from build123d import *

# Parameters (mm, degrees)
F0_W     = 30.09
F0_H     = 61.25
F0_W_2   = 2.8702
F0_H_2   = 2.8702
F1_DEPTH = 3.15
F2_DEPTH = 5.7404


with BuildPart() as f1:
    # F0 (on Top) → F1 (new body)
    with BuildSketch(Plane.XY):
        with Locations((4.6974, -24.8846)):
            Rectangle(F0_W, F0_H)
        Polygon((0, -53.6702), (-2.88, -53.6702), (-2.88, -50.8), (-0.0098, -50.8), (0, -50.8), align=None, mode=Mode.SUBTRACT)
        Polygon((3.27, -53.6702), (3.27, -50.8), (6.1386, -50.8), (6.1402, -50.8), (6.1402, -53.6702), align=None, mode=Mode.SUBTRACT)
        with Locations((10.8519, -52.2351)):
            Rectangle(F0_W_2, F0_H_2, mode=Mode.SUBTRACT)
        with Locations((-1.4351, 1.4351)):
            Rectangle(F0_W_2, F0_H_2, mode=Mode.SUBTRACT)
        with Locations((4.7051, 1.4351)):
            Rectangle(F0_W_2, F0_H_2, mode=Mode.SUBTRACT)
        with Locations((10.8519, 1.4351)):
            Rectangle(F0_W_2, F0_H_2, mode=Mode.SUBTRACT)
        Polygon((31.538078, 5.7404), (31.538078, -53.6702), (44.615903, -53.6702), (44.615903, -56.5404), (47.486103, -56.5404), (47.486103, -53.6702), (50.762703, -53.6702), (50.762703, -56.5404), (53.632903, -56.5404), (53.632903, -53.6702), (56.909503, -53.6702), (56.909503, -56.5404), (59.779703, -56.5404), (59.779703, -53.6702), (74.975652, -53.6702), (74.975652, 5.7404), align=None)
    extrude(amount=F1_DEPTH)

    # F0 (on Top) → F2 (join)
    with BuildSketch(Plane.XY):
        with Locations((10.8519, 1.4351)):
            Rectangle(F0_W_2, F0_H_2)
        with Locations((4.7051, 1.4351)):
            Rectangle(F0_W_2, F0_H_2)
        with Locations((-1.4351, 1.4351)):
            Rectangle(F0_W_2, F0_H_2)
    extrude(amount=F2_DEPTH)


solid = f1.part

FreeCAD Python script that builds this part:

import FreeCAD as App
import Part
import Sketcher
from FreeCAD import Vector
Q = App.Units.Quantity

doc = App.newDocument("Part")
body = doc.addObject("PartDesign::Body", "Body")
body.AllowCompound = True

sketch1 = body.newObject("Sketcher::SketchObject", "Sketch")
sketch1.AttachmentSupport = (doc.getObject("XY_Plane"), [""])
sketch1.MapMode = "FlatFace"
sketch1.addGeometry([
    Part.LineSegment(Vector(-10.3, 5.7, 0), Vector(-10.3, -55.5, 0)),
    Part.LineSegment(Vector(-10.3, -55.5, 0), Vector(19.7, -55.5, 0)),
    Part.LineSegment(Vector(19.7, -55.5, 0), Vector(19.7, 5.7, 0)),
    Part.LineSegment(Vector(19.7, 5.7, 0), Vector(-10.3, 5.7, 0)),
    Part.LineSegment(Vector(0, -50.8, 0), Vector(0, -53.7, 0)),
    Part.LineSegment(Vector(0, -53.7, 0), Vector(-2.9, -53.7, 0)),
    Part.LineSegment(Vector(-2.9, -53.7, 0), Vector(-2.9, -50.8, 0)),
    Part.LineSegment(Vector(-2.9, -50.8, 0), Vector(0, -50.8, 0)),
    Part.LineSegment(Vector(6.1, -53.7, 0), Vector(3.3, -53.7, 0)),
    Part.LineSegment(Vector(3.3, -53.7, 0), Vector(3.3, -50.8, 0)),
    Part.LineSegment(Vector(3.3, -50.8, 0), Vector(6.1, -50.8, 0)),
    Part.LineSegment(Vector(6.1, -50.8, 0), Vector(6.1, -53.7, 0)),
    Part.LineSegment(Vector(12.3, -53.7, 0), Vector(9.4, -53.7, 0)),
    Part.LineSegment(Vector(9.4, -53.7, 0), Vector(9.4, -50.8, 0)),
    Part.LineSegment(Vector(9.4, -50.8, 0), Vector(12.3, -50.8, 0)),
    Part.LineSegment(Vector(12.3, -50.8, 0), Vector(12.3, -53.7, 0)),
    Part.LineSegment(Vector(0, 0, 0), Vector(-2.9, 0, 0)),
    Part.LineSegment(Vector(-2.9, 0, 0), Vector(-2.9, 2.9, 0)),
    Part.LineSegment(Vector(-2.9, 2.9, 0), Vector(0, 2.9, 0)),
    Part.LineSegment(Vector(0, 2.9, 0), Vector(0, 0, 0)),
    Part.LineSegment(Vector(6.1, 0, 0), Vector(3.3, 0, 0)),
    Part.LineSegment(Vector(3.3, 0, 0), Vector(3.3, 2.9, 0)),
    Part.LineSegment(Vector(3.3, 2.9, 0), Vector(6.1, 2.9, 0)),
    Part.LineSegment(Vector(6.1, 2.9, 0), Vector(6.1, 0, 0)),
    Part.LineSegment(Vector(12.3, 0, 0), Vector(9.4, 0, 0)),
    Part.LineSegment(Vector(9.4, 0, 0), Vector(9.4, 2.9, 0)),
    Part.LineSegment(Vector(9.4, 2.9, 0), Vector(12.3, 2.9, 0)),
    Part.LineSegment(Vector(12.3, 2.9, 0), Vector(12.3, 0, 0)),
    Part.LineSegment(Vector(31.5, 5.7, 0), Vector(31.5, -53.7, 0)),
    Part.LineSegment(Vector(31.5, -53.7, 0), Vector(44.6, -53.7, 0)),
    Part.LineSegment(Vector(44.6, -53.7, 0), Vector(44.6, -56.5, 0)),
    Part.LineSegment(Vector(44.6, -56.5, 0), Vector(47.5, -56.5, 0)),
    Part.LineSegment(Vector(47.5, -56.5, 0), Vector(47.5, -53.7, 0)),
    Part.LineSegment(Vector(47.5, -53.7, 0), Vector(50.8, -53.7, 0)),
    Part.LineSegment(Vector(50.8, -53.7, 0), Vector(50.8, -56.5, 0)),
    Part.LineSegment(Vector(50.8, -56.5, 0), Vector(53.6, -56.5, 0)),
    Part.LineSegment(Vector(53.6, -56.5, 0), Vector(53.6, -53.7, 0)),
    Part.LineSegment(Vector(53.6, -53.7, 0), Vector(56.9, -53.7, 0)),
    Part.LineSegment(Vector(56.9, -53.7, 0), Vector(56.9, -56.5, 0)),
    Part.LineSegment(Vector(56.9, -56.5, 0), Vector(59.8, -56.5, 0)),
    Part.LineSegment(Vector(59.8, -56.5, 0), Vector(59.8, -53.7, 0)),
    Part.LineSegment(Vector(59.8, -53.7, 0), Vector(75, -53.7, 0)),
    Part.LineSegment(Vector(75, -53.7, 0), Vector(75, 5.7, 0)),
    Part.LineSegment(Vector(75, 5.7, 0), Vector(31.5, 5.7, 0)),
], False)
sketch1.addConstraint([
    Sketcher.Constraint("Coincident", 0, 2, 1, 1),
    Sketcher.Constraint("Coincident", 1, 2, 2, 1),
    Sketcher.Constraint("Coincident", 2, 2, 3, 1),
    Sketcher.Constraint("Coincident", 3, 2, 0, 1),
    Sketcher.Constraint("Coincident", 4, 2, 5, 1),
    Sketcher.Constraint("Coincident", 5, 2, 6, 1),
    Sketcher.Constraint("Coincident", 6, 2, 7, 1),
    Sketcher.Constraint("Coincident", 7, 2, 4, 1),
    Sketcher.Constraint("Coincident", 8, 2, 9, 1),
    Sketcher.Constraint("Coincident", 9, 2, 10, 1),
    Sketcher.Constraint("Coincident", 10, 2, 11, 1),
    Sketcher.Constraint("Coincident", 11, 2, 8, 1),
    Sketcher.Constraint("Coincident", 12, 2, 13, 1),
    Sketcher.Constraint("Coincident", 13, 2, 14, 1),
    Sketcher.Constraint("Coincident", 14, 2, 15, 1),
    Sketcher.Constraint("Coincident", 15, 2, 12, 1),
    Sketcher.Constraint("Coincident", 16, 2, 17, 1),
    Sketcher.Constraint("Coincident", 17, 2, 18, 1),
    Sketcher.Constraint("Coincident", 18, 2, 19, 1),
    Sketcher.Constraint("Coincident", 19, 2, 16, 1),
    Sketcher.Constraint("Coincident", 20, 2, 21, 1),
    Sketcher.Constraint("Coincident", 21, 2, 22, 1),
    Sketcher.Constraint("Coincident", 22, 2, 23, 1),
    Sketcher.Constraint("Coincident", 23, 2, 20, 1),
    Sketcher.Constraint("Coincident", 24, 2, 25, 1),
    Sketcher.Constraint("Coincident", 25, 2, 26, 1),
    Sketcher.Constraint("Coincident", 26, 2, 27, 1),
    Sketcher.Constraint("Coincident", 27, 2, 24, 1),
    Sketcher.Constraint("Coincident", 28, 2, 29, 1),
    Sketcher.Constraint("Coincident", 29, 2, 30, 1),
    Sketcher.Constraint("Coincident", 30, 2, 31, 1),
    Sketcher.Constraint("Coincident", 31, 2, 32, 1),
    Sketcher.Constraint("Coincident", 32, 2, 33, 1),
    Sketcher.Constraint("Coincident", 33, 2, 34, 1),
    Sketcher.Constraint("Coincident", 34, 2, 35, 1),
    Sketcher.Constraint("Coincident", 35, 2, 36, 1),
    Sketcher.Constraint("Coincident", 36, 2, 37, 1),
    Sketcher.Constraint("Coincident", 37, 2, 38, 1),
    Sketcher.Constraint("Coincident", 38, 2, 39, 1),
    Sketcher.Constraint("Coincident", 39, 2, 40, 1),
    Sketcher.Constraint("Coincident", 40, 2, 41, 1),
    Sketcher.Constraint("Coincident", 41, 2, 42, 1),
    Sketcher.Constraint("Coincident", 42, 2, 43, 1),
    Sketcher.Constraint("Coincident", 43, 2, 28, 1),
    Sketcher.Constraint("Vertical", 0),
    Sketcher.Constraint("Horizontal", 1),
    Sketcher.Constraint("Vertical", 2),
    Sketcher.Constraint("Horizontal", 3),
    Sketcher.Constraint("Vertical", 4),
    Sketcher.Constraint("Horizontal", 5),
    Sketcher.Constraint("Vertical", 6),
    Sketcher.Constraint("Horizontal", 7),
    Sketcher.Constraint("Horizontal", 8),
    Sketcher.Constraint("Vertical", 9),
    Sketcher.Constraint("Horizontal", 10),
    Sketcher.Constraint("Vertical", 11),
    Sketcher.Constraint("Horizontal", 12),
    Sketcher.Constraint("Vertical", 13),
    Sketcher.Constraint("Horizontal", 14),
    Sketcher.Constraint("Vertical", 15),
    Sketcher.Constraint("Horizontal", 16),
    Sketcher.Constraint("Vertical", 17),
    Sketcher.Constraint("Horizontal", 18),
    Sketcher.Constraint("Vertical", 19),
    Sketcher.Constraint("Horizontal", 20),
    Sketcher.Constraint("Vertical", 21),
    Sketcher.Constraint("Horizontal", 22),
    Sketcher.Constraint("Vertical", 23),
    Sketcher.Constraint("Horizontal", 24),
    Sketcher.Constraint("Vertical", 25),
    Sketcher.Constraint("Horizontal", 26),
    Sketcher.Constraint("Vertical", 27),
    Sketcher.Constraint("Vertical", 28),
    Sketcher.Constraint("Horizontal", 29),
    Sketcher.Constraint("Vertical", 30),
    Sketcher.Constraint("Horizontal", 31),
    Sketcher.Constraint("Vertical", 32),
    Sketcher.Constraint("Horizontal", 33),
    Sketcher.Constraint("Vertical", 34),
    Sketcher.Constraint("Horizontal", 35),
    Sketcher.Constraint("Vertical", 36),
    Sketcher.Constraint("Horizontal", 37),
    Sketcher.Constraint("Vertical", 38),
    Sketcher.Constraint("Horizontal", 39),
    Sketcher.Constraint("Vertical", 40),
    Sketcher.Constraint("Horizontal", 41),
    Sketcher.Constraint("Vertical", 42),
    Sketcher.Constraint("Horizontal", 43),
    Sketcher.Constraint("Coincident", 19, 2, -1, 1),
    Sketcher.Constraint("PointOnObject", 4, 2, -2),
    Sketcher.Constraint("PointOnObject", 20, 2, -1),
    Sketcher.Constraint("PointOnObject", 24, 2, -1),
    Sketcher.Constraint("Horizontal", 5, 2, 8, 2),
    Sketcher.Constraint("Horizontal", 7, 2, 9, 2),
    Sketcher.Constraint("Horizontal", 11, 2, 12, 2),
    Sketcher.Constraint("Horizontal", 10, 2, 13, 2),
    Sketcher.Constraint("Horizontal", 18, 2, 21, 2),
    Sketcher.Constraint("Horizontal", 22, 2, 25, 2),
    Sketcher.Constraint("Horizontal", 15, 2, 28, 2),
    Sketcher.Constraint("Horizontal", 29, 2, 32, 2),
    Sketcher.Constraint("Horizontal", 31, 2, 34, 2),
    Sketcher.Constraint("Horizontal", 33, 2, 36, 2),
    Sketcher.Constraint("Horizontal", 35, 2, 38, 2),
    Sketcher.Constraint("Horizontal", 37, 2, 40, 2),
    Sketcher.Constraint("Horizontal", 3, 2, 42, 2),
    Sketcher.Constraint("Vertical", 9, 2, 20, 2),
    Sketcher.Constraint("Vertical", 11, 2, 22, 2),
    Sketcher.Constraint("Vertical", 13, 2, 24, 2),
    Sketcher.Constraint("Vertical", 15, 2, 26, 2),
    Sketcher.Constraint("Equal", 10, 12),
    Sketcher.Constraint("Equal", 14, 16),
    Sketcher.Constraint("Equal", 26, 31),
    Sketcher.Constraint("Equal", 31, 35),
    Sketcher.Constraint("Equal", 33, 37),
    Sketcher.Constraint("Equal", 35, 39),
    Sketcher.Constraint("Equal", 39, 4),
    Sketcher.Constraint("Equal", 15, 17),
    Sketcher.Constraint("Equal", 27, 30),
    Sketcher.Constraint("DistanceY", 6, 2, -1, 1, Q("2 in")),
    Sketcher.Constraint("DistanceX", 8, 2, 8, 1, Q("0.113 in")),
    Sketcher.Constraint("DistanceX", 33, 1, 33, 2, Q("0.129 in")),
    Sketcher.Constraint("DistanceY", 28, 2, 28, 1, Q("2.339 in")),
    Sketcher.Constraint("DistanceX", 0, 2, 5, 2, Q("0.294 in")),
    Sketcher.Constraint("DistanceX", 11, 2, 12, 2, Q("0.129 in")),
    Sketcher.Constraint("DistanceX", 1, 1, 1, 2, 30.09),
    Sketcher.Constraint("DistanceX", 5, 2, 5, 1, 2.88),
    Sketcher.Constraint("DistanceY", 0, 2, 0, 1, 61.25),
    Sketcher.Constraint("DistanceX", 41, 1, 41, 2, 15.195949),
    Sketcher.Constraint("DistanceX", -1, 1, 8, 2, 3.27),
    Sketcher.Constraint("DistanceX", 29, 1, 29, 2, 13.077825),
    Sketcher.Constraint("DistanceX", -1, 1, 41, 2, 74.975652),
])
pad1 = body.newObject("PartDesign::Pad", "Pad")
pad1.Profile = sketch1
pad1.Length = 3.15

sketch2 = body.newObject("Sketcher::SketchObject", "Sketch001")
sketch2.AttachmentSupport = (doc.getObject("XY_Plane"), [""])
sketch2.MapMode = "FlatFace"
sketch2.addGeometry([
    Part.LineSegment(Vector(9.4, 2.9, 0), Vector(9.4, 0, 0)),
    Part.LineSegment(Vector(9.4, 0, 0), Vector(12.3, 0, 0)),
    Part.LineSegment(Vector(12.3, 0, 0), Vector(12.3, 2.9, 0)),
    Part.LineSegment(Vector(12.3, 2.9, 0), Vector(9.4, 2.9, 0)),
    Part.LineSegment(Vector(3.3, 2.9, 0), Vector(3.3, 0, 0)),
    Part.LineSegment(Vector(3.3, 0, 0), Vector(6.1, 0, 0)),
    Part.LineSegment(Vector(6.1, 0, 0), Vector(6.1, 2.9, 0)),
    Part.LineSegment(Vector(6.1, 2.9, 0), Vector(3.3, 2.9, 0)),
    Part.LineSegment(Vector(-2.9, 2.9, 0), Vector(-2.9, 0, 0)),
    Part.LineSegment(Vector(-2.9, 0, 0), Vector(0, 0, 0)),
    Part.LineSegment(Vector(0, 0, 0), Vector(0, 2.9, 0)),
    Part.LineSegment(Vector(0, 2.9, 0), Vector(-2.9, 2.9, 0)),
], False)
sketch2.addConstraint([
    Sketcher.Constraint("Coincident", 0, 2, 1, 1),
    Sketcher.Constraint("Coincident", 1, 2, 2, 1),
    Sketcher.Constraint("Coincident", 2, 2, 3, 1),
    Sketcher.Constraint("Coincident", 3, 2, 0, 1),
    Sketcher.Constraint("Coincident", 4, 2, 5, 1),
    Sketcher.Constraint("Coincident", 5, 2, 6, 1),
    Sketcher.Constraint("Coincident", 6, 2, 7, 1),
    Sketcher.Constraint("Coincident", 7, 2, 4, 1),
    Sketcher.Constraint("Coincident", 8, 2, 9, 1),
    Sketcher.Constraint("Coincident", 9, 2, 10, 1),
    Sketcher.Constraint("Coincident", 10, 2, 11, 1),
    Sketcher.Constraint("Coincident", 11, 2, 8, 1),
    Sketcher.Constraint("Vertical", 0),
    Sketcher.Constraint("Horizontal", 1),
    Sketcher.Constraint("Vertical", 2),
    Sketcher.Constraint("Horizontal", 3),
    Sketcher.Constraint("Vertical", 4),
    Sketcher.Constraint("Horizontal", 5),
    Sketcher.Constraint("Vertical", 6),
    Sketcher.Constraint("Horizontal", 7),
    Sketcher.Constraint("Vertical", 8),
    Sketcher.Constraint("Horizontal", 9),
    Sketcher.Constraint("Vertical", 10),
    Sketcher.Constraint("Horizontal", 11),
    Sketcher.Constraint("Coincident", 9, 2, -1, 1),
    Sketcher.Constraint("PointOnObject", 0, 2, -1),
    Sketcher.Constraint("PointOnObject", 4, 2, -1),
    Sketcher.Constraint("Horizontal", 3, 2, 6, 2),
    Sketcher.Constraint("Horizontal", 7, 2, 10, 2),
    Sketcher.Constraint("Equal", 3, 5),
    Sketcher.Constraint("Equal", 7, 9),
    Sketcher.Constraint("Equal", 11, 0),
    Sketcher.Constraint("DistanceX", 1, 1, 1, 2, Q("0.113 in")),
    Sketcher.Constraint("DistanceX", 4, 2, 0, 2, Q("0.242 in")),
    Sketcher.Constraint("DistanceX", -1, 1, 0, 2, 9.4168),
])
pad2 = body.newObject("PartDesign::Pad", "Pad001")
pad2.Profile = sketch2
pad2.Length = Q("0.226 in")

doc.recompute()
